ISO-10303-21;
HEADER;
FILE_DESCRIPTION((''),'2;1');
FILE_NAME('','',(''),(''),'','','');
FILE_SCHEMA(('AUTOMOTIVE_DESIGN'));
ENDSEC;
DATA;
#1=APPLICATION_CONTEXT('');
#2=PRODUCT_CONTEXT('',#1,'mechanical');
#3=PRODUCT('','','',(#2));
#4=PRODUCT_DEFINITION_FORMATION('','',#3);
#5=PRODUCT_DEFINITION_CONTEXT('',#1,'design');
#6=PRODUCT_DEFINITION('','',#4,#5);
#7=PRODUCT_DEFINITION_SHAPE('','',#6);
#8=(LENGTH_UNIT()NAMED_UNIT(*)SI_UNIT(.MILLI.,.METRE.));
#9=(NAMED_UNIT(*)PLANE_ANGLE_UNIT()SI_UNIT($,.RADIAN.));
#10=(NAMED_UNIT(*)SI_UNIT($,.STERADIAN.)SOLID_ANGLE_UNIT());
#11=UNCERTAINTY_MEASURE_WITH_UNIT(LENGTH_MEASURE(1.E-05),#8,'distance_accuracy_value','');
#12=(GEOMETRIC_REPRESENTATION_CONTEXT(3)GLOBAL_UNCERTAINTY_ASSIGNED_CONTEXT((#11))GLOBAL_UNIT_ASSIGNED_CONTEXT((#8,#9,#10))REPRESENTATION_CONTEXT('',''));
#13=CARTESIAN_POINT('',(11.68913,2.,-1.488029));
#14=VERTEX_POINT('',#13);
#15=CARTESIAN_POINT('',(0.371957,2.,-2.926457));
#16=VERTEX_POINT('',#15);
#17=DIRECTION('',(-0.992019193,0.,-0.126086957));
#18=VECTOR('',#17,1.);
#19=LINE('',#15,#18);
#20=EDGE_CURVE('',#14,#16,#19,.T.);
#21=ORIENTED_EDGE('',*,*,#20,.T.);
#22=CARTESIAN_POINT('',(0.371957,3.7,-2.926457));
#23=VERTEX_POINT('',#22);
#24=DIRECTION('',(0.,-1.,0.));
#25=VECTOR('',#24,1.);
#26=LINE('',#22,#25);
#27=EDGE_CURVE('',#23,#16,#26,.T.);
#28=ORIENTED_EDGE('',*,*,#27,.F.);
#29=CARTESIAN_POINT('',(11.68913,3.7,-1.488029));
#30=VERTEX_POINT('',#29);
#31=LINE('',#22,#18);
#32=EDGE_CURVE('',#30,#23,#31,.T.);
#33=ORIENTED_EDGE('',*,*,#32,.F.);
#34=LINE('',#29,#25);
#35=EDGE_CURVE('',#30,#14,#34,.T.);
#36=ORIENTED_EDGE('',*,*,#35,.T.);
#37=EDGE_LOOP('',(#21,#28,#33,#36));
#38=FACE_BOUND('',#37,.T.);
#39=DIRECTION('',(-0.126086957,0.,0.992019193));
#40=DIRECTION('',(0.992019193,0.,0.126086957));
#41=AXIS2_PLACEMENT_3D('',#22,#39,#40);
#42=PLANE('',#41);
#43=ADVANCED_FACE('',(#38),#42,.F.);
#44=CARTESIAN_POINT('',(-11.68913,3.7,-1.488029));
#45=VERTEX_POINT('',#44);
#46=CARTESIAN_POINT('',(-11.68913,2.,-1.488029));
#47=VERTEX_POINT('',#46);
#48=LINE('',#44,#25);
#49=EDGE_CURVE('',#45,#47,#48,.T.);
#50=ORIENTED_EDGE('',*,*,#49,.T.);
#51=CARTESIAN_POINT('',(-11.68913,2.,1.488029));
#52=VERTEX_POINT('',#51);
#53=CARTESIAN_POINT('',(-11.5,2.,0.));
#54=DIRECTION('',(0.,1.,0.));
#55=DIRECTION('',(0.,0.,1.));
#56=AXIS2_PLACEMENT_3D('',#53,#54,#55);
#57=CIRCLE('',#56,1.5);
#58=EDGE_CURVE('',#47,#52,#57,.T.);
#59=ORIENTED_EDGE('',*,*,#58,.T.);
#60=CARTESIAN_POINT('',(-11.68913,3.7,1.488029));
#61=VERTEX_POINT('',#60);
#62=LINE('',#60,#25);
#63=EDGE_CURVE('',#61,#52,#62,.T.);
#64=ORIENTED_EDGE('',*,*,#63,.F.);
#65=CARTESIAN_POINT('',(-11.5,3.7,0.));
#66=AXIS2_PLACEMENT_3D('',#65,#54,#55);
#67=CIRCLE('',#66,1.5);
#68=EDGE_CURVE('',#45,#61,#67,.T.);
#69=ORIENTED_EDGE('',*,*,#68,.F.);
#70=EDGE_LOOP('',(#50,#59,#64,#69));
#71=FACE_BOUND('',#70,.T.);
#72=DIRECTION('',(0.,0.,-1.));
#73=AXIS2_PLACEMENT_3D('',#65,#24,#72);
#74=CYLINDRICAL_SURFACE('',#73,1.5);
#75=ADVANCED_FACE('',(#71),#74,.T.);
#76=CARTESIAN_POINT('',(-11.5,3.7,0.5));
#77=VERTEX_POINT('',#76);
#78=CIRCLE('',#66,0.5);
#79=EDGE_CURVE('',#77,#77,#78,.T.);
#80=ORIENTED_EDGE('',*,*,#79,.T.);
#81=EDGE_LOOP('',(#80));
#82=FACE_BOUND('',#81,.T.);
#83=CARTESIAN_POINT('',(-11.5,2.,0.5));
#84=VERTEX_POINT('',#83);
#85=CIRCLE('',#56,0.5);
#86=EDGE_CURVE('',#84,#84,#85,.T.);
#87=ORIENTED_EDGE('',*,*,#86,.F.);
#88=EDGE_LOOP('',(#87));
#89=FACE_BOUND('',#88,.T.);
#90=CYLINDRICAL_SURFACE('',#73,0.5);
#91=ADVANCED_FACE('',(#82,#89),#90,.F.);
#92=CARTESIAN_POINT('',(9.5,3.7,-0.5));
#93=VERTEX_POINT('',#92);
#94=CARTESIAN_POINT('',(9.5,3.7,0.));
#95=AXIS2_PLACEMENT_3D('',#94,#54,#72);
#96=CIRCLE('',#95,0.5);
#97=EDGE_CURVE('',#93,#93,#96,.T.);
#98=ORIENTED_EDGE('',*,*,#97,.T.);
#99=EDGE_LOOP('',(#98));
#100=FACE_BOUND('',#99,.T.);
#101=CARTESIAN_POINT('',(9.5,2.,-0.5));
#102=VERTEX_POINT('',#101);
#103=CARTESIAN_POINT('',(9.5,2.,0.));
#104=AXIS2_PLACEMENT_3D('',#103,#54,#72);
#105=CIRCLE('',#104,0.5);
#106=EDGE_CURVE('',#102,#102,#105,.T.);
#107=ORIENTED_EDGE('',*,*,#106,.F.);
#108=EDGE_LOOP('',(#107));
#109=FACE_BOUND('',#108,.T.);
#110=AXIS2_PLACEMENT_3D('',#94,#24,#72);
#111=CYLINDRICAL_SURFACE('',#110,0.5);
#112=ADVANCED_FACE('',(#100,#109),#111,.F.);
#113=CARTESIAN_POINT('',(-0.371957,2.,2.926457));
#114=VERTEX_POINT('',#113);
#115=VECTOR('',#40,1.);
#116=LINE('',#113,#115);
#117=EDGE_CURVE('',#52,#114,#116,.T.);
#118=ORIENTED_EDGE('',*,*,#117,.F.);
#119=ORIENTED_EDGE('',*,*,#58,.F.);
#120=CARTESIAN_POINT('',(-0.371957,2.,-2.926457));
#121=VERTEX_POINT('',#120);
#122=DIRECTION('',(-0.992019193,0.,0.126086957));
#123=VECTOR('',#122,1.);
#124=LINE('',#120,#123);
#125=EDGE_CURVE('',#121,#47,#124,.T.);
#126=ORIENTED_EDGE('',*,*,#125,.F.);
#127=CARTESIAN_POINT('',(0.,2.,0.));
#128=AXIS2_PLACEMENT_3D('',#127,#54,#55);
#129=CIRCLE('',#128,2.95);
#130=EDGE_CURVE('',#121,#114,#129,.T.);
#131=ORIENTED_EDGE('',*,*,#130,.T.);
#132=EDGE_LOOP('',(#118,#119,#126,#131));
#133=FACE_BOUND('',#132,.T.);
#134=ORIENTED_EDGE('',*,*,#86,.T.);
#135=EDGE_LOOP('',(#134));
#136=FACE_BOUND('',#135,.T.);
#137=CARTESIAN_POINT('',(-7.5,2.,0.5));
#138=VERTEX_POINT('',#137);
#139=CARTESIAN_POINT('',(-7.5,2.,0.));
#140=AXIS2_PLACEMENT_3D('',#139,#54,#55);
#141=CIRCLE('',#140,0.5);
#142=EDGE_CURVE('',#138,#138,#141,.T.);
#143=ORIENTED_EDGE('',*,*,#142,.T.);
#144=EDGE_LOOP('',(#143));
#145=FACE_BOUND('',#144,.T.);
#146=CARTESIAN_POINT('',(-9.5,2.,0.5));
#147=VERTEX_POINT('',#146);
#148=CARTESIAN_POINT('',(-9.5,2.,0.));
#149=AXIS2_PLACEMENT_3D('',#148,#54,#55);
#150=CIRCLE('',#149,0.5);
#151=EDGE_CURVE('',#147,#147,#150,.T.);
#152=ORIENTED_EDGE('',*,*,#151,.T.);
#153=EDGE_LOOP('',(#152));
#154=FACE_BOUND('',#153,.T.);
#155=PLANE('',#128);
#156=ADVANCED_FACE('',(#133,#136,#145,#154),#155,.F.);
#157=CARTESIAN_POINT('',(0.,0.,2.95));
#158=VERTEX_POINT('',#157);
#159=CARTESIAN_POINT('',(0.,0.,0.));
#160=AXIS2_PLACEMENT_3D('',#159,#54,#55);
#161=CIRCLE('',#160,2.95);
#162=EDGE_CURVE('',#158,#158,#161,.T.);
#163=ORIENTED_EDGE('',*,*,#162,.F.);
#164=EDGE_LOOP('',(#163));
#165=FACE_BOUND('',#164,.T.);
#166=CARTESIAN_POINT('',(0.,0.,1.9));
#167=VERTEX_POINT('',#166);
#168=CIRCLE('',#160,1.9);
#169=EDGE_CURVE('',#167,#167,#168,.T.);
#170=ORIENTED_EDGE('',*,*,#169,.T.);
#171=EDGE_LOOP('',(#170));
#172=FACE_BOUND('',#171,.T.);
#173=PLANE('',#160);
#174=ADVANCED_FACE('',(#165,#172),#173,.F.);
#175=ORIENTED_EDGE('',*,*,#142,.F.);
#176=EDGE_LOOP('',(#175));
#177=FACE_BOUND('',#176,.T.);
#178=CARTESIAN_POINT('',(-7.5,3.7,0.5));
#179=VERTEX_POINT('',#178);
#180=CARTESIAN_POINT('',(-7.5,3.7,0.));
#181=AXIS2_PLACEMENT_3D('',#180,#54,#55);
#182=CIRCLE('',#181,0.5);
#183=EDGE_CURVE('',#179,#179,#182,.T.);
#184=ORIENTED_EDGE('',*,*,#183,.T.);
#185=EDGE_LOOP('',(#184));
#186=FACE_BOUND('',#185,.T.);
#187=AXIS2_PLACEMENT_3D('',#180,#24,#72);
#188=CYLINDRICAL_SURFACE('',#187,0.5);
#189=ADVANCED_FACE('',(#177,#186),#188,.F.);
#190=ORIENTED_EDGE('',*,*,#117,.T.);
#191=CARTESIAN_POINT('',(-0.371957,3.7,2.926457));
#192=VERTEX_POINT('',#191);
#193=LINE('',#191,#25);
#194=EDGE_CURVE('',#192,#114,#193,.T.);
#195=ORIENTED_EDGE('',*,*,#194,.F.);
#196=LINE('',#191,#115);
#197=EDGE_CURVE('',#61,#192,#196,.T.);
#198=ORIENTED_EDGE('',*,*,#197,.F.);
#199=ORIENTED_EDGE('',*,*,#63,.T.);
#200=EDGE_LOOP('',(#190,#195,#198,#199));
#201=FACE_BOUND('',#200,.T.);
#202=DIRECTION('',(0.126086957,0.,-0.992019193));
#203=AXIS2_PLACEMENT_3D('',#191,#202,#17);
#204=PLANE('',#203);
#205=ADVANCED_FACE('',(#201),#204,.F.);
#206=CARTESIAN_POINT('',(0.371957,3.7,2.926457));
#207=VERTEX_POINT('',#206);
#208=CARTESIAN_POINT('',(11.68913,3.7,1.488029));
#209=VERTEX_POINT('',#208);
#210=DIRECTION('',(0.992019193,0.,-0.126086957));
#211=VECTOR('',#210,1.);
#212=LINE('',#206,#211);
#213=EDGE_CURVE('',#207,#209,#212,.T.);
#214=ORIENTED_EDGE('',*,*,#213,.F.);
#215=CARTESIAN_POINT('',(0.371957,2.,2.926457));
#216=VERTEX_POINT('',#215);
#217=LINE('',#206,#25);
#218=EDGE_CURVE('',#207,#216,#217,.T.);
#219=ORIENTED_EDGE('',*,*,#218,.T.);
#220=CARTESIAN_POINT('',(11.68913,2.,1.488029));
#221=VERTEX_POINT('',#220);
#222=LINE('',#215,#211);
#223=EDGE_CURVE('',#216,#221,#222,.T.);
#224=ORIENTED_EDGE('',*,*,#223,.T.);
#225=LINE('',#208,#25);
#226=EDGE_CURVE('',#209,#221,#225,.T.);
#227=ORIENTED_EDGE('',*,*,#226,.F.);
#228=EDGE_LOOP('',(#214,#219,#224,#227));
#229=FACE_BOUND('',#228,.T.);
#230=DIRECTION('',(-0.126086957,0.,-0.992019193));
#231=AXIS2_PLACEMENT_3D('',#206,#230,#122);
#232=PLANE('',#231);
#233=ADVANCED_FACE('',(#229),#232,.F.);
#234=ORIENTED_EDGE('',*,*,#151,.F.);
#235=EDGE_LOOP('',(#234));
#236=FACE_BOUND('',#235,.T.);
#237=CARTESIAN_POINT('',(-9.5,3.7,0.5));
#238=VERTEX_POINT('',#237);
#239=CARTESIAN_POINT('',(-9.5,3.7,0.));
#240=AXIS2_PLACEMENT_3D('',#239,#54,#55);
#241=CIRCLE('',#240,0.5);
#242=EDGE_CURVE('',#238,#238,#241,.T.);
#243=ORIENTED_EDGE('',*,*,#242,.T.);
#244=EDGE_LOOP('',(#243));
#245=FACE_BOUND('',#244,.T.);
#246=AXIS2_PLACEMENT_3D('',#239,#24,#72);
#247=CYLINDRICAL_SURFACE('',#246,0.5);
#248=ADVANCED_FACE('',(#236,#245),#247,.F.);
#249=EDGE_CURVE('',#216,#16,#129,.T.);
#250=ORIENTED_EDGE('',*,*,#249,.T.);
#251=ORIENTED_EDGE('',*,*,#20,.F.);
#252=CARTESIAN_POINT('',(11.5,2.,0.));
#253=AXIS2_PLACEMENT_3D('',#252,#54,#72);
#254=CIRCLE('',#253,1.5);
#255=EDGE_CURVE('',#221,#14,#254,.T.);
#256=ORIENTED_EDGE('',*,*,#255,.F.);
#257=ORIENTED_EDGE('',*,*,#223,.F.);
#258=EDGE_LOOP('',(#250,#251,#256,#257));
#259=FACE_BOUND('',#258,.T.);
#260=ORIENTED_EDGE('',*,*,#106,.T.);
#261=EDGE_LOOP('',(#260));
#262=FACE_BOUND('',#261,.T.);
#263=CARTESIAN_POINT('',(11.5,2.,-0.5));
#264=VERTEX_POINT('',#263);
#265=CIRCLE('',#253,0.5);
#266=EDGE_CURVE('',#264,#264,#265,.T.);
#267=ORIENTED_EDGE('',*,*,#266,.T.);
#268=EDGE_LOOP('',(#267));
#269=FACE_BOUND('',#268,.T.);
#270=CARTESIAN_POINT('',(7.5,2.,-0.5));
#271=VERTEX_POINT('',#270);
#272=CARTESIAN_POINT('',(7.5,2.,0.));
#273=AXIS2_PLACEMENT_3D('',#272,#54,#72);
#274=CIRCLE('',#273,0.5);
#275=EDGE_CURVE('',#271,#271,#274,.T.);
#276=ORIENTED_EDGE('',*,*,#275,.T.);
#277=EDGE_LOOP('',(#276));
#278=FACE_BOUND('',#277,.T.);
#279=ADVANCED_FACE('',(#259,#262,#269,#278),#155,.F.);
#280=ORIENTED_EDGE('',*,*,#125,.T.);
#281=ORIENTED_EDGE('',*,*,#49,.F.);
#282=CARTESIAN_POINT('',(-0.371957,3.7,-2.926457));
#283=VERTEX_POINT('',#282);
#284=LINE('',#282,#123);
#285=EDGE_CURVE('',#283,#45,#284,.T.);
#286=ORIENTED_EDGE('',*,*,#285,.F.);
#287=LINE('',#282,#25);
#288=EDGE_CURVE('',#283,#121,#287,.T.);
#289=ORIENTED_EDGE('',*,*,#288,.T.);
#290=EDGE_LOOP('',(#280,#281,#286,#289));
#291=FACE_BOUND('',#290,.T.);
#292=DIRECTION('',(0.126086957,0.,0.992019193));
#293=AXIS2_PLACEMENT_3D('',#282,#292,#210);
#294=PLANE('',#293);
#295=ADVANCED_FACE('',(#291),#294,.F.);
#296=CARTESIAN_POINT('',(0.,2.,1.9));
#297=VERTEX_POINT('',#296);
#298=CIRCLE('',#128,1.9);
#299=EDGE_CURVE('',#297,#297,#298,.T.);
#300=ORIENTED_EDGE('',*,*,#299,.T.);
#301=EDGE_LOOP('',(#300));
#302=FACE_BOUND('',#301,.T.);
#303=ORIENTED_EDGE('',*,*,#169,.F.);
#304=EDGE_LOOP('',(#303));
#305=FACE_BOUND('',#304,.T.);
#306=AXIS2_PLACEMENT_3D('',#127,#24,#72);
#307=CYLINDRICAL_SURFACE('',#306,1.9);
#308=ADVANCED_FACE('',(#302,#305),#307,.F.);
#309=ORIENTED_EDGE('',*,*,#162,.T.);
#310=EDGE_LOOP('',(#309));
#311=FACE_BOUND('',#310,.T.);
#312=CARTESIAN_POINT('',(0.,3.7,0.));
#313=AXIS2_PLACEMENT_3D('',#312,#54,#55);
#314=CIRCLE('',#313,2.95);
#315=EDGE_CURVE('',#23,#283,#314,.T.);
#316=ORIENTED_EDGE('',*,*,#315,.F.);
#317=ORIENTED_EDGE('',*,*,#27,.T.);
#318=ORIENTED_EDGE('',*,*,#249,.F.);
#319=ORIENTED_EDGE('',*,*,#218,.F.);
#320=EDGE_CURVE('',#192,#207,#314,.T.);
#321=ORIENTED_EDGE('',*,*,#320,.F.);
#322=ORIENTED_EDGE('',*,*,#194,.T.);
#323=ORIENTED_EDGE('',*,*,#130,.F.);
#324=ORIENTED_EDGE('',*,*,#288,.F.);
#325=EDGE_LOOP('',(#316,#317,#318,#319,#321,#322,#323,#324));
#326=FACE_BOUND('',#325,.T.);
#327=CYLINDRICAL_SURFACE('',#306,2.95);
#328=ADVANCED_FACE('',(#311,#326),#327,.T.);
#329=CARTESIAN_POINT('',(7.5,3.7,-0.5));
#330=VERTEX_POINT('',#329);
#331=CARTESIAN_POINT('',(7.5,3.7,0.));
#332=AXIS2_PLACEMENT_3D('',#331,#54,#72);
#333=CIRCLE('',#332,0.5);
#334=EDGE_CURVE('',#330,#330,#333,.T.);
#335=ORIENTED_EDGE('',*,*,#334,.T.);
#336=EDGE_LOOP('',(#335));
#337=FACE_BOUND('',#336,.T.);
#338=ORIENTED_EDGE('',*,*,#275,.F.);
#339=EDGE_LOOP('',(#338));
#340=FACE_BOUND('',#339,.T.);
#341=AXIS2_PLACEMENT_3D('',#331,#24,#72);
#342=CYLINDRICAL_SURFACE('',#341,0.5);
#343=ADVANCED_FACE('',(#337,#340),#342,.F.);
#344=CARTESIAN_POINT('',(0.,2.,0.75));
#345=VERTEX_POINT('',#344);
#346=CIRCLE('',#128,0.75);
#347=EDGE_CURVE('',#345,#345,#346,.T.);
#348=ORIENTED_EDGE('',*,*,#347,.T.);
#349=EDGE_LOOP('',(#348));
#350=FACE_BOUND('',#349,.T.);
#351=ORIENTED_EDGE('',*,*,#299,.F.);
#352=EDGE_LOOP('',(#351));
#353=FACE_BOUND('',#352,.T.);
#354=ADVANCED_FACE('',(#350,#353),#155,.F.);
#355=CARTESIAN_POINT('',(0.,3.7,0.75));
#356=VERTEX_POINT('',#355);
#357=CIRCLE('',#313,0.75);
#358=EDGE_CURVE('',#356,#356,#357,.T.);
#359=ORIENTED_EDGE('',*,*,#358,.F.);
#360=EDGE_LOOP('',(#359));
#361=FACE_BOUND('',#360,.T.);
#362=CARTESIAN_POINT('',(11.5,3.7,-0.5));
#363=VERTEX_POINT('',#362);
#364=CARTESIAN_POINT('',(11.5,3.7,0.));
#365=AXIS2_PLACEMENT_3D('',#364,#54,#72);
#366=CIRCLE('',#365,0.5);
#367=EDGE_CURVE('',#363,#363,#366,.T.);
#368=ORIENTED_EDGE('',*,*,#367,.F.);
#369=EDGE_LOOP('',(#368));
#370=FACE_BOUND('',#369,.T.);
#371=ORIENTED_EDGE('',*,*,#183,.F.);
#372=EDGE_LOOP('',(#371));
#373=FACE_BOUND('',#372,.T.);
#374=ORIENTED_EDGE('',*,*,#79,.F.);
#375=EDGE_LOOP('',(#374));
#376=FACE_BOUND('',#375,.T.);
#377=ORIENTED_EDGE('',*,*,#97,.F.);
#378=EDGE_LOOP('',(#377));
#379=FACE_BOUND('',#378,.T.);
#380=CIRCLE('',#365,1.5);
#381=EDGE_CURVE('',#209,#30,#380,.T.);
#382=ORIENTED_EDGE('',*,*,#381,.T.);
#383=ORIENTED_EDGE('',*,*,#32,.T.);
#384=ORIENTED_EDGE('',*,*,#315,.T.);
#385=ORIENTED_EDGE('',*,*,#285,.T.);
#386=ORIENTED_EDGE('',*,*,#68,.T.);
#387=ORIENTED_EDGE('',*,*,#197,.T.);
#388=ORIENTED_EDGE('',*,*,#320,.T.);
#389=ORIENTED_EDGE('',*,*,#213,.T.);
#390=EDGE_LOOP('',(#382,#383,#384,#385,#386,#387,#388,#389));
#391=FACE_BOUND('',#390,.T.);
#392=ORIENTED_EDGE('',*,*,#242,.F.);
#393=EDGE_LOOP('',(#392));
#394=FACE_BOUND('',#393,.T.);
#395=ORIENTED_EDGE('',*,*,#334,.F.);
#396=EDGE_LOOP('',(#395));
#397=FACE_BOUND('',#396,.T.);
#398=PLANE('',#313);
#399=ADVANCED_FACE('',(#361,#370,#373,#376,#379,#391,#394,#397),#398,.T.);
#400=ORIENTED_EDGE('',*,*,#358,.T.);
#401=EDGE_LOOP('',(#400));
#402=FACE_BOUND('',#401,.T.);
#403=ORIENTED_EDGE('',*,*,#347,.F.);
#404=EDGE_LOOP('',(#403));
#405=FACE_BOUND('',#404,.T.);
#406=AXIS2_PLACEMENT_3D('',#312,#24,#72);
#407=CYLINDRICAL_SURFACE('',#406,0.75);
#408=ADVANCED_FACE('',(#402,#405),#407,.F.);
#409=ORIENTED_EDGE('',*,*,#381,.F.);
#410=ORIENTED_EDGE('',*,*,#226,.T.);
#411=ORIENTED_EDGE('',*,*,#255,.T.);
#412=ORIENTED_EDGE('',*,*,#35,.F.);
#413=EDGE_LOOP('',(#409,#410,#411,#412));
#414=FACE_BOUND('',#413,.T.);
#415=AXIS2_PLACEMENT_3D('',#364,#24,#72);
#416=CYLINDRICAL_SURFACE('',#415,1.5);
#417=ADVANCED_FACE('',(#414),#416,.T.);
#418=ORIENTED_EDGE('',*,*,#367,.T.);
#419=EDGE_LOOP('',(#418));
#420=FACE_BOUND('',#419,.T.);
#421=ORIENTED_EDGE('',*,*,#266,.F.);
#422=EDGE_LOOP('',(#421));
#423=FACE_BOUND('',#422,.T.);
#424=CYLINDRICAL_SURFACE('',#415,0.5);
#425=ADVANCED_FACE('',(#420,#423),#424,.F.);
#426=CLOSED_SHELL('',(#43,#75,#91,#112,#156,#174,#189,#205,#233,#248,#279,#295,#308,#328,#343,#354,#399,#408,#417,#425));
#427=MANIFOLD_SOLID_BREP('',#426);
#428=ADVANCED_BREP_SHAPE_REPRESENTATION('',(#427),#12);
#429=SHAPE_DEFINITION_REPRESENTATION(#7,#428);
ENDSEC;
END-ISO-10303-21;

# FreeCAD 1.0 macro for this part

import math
import FreeCAD as App
import Part
import Sketcher
from FreeCAD import Vector

doc = App.newDocument("Part")
params = doc.addObject("Spreadsheet::Sheet", "Params")
for row, (alias, value) in enumerate([
    ("sketch1_diameter", "5.9 mm"),
    ("sketch1_diameter2", "3.8 mm"),
    ("pad1_length", "2 mm"),
    ("sketch2_diameter", "1 mm"),
    ("sketch2_diameter2", "1.5 mm"),
    ("sketch2_radius", "1.5 mm"),
    ("sketch2_radius2", "2.95 mm"),
    ("pad2_length", "1.7 mm"),
], start=1):
    params.set(f"A{row}", alias)
    params.set(f"B{row}", "=" + value)
    params.setAlias(f"B{row}", alias)

body = doc.addObject("PartDesign::Body", "Body")

sketch1 = body.newObject("Sketcher::SketchObject", "Sketch")
sketch1.AttachmentSupport = (doc.getObject("XZ_Plane"), [""])
sketch1.MapMode = "FlatFace"
sketch1.addGeometry([
    Part.Circle(Vector(0, 0, 0), Vector(0, 0, 1), 2.95),
    Part.Circle(Vector(0, 0, 0), Vector(0, 0, 1), 1.9),
], False)
sketch1.addConstraint([
    Sketcher.Constraint("Coincident", 0, 3, -1, 1),
    Sketcher.Constraint("Coincident", 1, 3, -1, 1),
    Sketcher.Constraint("Diameter", 0, 5.9),
    Sketcher.Constraint("Diameter", 1, 3.8),
])
sketch1.setExpression("Constraints[2]", "Params.sketch1_diameter")
sketch1.setExpression("Constraints[3]", "Params.sketch1_diameter2")
pad1 = body.newObject("PartDesign::Pad", "Pad")
pad1.Profile = sketch1
pad1.setExpression("Length", "Params.pad1_length")
pad1.Reversed = True

sketch2 = body.newObject("Sketcher::SketchObject", "Sketch001")
sketch2.AttachmentSupport = (doc.getObject("XZ_Plane"), [""])
sketch2.MapMode = "FlatFace"
sketch2.AttachmentOffset = App.Placement(Vector(0, 0, -2), App.Rotation())
sketch2.addGeometry([
    Part.LineSegment(Vector(-0.371957, -2.926457, 0), Vector(-11.68913, -1.488029, 0)),
    Part.ArcOfCircle(Part.Circle(Vector(-11.5, 0, 0), Vector(0, 0, 1), 1.5), math.radians(97.24353), math.radians(262.75647)),
    Part.LineSegment(Vector(-11.68913, 1.488029, 0), Vector(-0.371957, 2.926457, 0)),
    Part.ArcOfCircle(Part.Circle(Vector(0, 0, 0), Vector(0, 0, 1), 2.95), math.radians(82.75647), math.radians(97.24353)),
    Part.LineSegment(Vector(0.371957, 2.926457, 0), Vector(11.68913, 1.488029, 0)),
    Part.ArcOfCircle(Part.Circle(Vector(11.5, 0, 0), Vector(0, 0, 1), 1.5), math.radians(-82.75647), math.radians(82.75647)),
    Part.LineSegment(Vector(11.68913, -1.488029, 0), Vector(0.371957, -2.926457, 0)),
    Part.ArcOfCircle(Part.Circle(Vector(0, 0, 0), Vector(0, 0, 1), 2.95), math.radians(-97.24353), math.radians(-82.75647)),
    Part.Circle(Vector(-11.5, 0, 0), Vector(0, 0, 1), 0.5),
    Part.Circle(Vector(-9.5, 0, 0), Vector(0, 0, 1), 0.5),
    Part.Circle(Vector(-7.5, 0, 0), Vector(0, 0, 1), 0.5),
    Part.Circle(Vector(0, 0, 0), Vector(0, 0, 1), 0.75),
    Part.Circle(Vector(7.5, 0, 0), Vector(0, 0, 1), 0.5),
    Part.Circle(Vector(9.5, 0, 0), Vector(0, 0, 1), 0.5),
    Part.Circle(Vector(11.5, 0, 0), Vector(0, 0, 1), 0.5),
], False)
sketch2.addConstraint([
    Sketcher.Constraint("Tangent", 0, 2, 1, 2),
    Sketcher.Constraint("Tangent", 1, 1, 2, 1),
    Sketcher.Constraint("Tangent", 2, 2, 3, 2),
    Sketcher.Constraint("Tangent", 3, 1, 4, 1),
    Sketcher.Constraint("Tangent", 4, 2, 5, 2),
    Sketcher.Constraint("Tangent", 5, 1, 6, 1),
    Sketcher.Constraint("Tangent", 6, 2, 7, 2),
    Sketcher.Constraint("Tangent", 7, 1, 0, 1),
    Sketcher.Constraint("Coincident", 3, 3, -1, 1),
    Sketcher.Constraint("Coincident", 7, 3, -1, 1),
    Sketcher.Constraint("Coincident", 11, 3, -1, 1),
    Sketcher.Constraint("Coincident", 8, 3, 1, 3),
    Sketcher.Constraint("Coincident", 14, 3, 5, 3),
    Sketcher.Constraint("Equal", 1, 5),
    Sketcher.Constraint("Equal", 3, 7),
    Sketcher.Constraint("Equal", 8, 9),
    Sketcher.Constraint("Equal", 9, 10),
    Sketcher.Constraint("Equal", 10, 12),
    Sketcher.Constraint("Equal", 12, 13),
    Sketcher.Constraint("Equal", 13, 14),
    Sketcher.Constraint("Symmetric", 1, 3, 5, 3, -1, 1),
    Sketcher.Constraint("Symmetric", 10, 3, 12, 3, -1, 1),
    Sketcher.Constraint("Symmetric", 9, 3, 13, 3, -1, 1),
    Sketcher.Constraint("PointOnObject", 1, 3, -1),
    Sketcher.Constraint("PointOnObject", 9, 3, -1),
    Sketcher.Constraint("PointOnObject", 10, 3, -1),
    Sketcher.Constraint("Diameter", 8, 1.0),
    Sketcher.Constraint("Diameter", 11, 1.5),
    Sketcher.Constraint("Radius", 1, 1.5),
    Sketcher.Constraint("Radius", 3, 2.95),
    Sketcher.Constraint("DistanceX", 1, 3, 5, 3, 23.0),
    Sketcher.Constraint("DistanceX", 1, 3, 9, 3, 2.0),
    Sketcher.Constraint("DistanceX", 9, 3, 10, 3, 2.0),
])
sketch2.setExpression("Constraints[26]", "Params.sketch2_diameter")
sketch2.setExpression("Constraints[27]", "Params.sketch2_diameter2")
sketch2.setExpression("Constraints[28]", "Params.sketch2_radius")
sketch2.setExpression("Constraints[29]", "Params.sketch2_radius2")
pad2 = body.newObject("PartDesign::Pad", "Pad001")
pad2.Profile = sketch2
pad2.setExpression("Length", "Params.pad2_length")
pad2.Reversed = True

doc.recompute()
